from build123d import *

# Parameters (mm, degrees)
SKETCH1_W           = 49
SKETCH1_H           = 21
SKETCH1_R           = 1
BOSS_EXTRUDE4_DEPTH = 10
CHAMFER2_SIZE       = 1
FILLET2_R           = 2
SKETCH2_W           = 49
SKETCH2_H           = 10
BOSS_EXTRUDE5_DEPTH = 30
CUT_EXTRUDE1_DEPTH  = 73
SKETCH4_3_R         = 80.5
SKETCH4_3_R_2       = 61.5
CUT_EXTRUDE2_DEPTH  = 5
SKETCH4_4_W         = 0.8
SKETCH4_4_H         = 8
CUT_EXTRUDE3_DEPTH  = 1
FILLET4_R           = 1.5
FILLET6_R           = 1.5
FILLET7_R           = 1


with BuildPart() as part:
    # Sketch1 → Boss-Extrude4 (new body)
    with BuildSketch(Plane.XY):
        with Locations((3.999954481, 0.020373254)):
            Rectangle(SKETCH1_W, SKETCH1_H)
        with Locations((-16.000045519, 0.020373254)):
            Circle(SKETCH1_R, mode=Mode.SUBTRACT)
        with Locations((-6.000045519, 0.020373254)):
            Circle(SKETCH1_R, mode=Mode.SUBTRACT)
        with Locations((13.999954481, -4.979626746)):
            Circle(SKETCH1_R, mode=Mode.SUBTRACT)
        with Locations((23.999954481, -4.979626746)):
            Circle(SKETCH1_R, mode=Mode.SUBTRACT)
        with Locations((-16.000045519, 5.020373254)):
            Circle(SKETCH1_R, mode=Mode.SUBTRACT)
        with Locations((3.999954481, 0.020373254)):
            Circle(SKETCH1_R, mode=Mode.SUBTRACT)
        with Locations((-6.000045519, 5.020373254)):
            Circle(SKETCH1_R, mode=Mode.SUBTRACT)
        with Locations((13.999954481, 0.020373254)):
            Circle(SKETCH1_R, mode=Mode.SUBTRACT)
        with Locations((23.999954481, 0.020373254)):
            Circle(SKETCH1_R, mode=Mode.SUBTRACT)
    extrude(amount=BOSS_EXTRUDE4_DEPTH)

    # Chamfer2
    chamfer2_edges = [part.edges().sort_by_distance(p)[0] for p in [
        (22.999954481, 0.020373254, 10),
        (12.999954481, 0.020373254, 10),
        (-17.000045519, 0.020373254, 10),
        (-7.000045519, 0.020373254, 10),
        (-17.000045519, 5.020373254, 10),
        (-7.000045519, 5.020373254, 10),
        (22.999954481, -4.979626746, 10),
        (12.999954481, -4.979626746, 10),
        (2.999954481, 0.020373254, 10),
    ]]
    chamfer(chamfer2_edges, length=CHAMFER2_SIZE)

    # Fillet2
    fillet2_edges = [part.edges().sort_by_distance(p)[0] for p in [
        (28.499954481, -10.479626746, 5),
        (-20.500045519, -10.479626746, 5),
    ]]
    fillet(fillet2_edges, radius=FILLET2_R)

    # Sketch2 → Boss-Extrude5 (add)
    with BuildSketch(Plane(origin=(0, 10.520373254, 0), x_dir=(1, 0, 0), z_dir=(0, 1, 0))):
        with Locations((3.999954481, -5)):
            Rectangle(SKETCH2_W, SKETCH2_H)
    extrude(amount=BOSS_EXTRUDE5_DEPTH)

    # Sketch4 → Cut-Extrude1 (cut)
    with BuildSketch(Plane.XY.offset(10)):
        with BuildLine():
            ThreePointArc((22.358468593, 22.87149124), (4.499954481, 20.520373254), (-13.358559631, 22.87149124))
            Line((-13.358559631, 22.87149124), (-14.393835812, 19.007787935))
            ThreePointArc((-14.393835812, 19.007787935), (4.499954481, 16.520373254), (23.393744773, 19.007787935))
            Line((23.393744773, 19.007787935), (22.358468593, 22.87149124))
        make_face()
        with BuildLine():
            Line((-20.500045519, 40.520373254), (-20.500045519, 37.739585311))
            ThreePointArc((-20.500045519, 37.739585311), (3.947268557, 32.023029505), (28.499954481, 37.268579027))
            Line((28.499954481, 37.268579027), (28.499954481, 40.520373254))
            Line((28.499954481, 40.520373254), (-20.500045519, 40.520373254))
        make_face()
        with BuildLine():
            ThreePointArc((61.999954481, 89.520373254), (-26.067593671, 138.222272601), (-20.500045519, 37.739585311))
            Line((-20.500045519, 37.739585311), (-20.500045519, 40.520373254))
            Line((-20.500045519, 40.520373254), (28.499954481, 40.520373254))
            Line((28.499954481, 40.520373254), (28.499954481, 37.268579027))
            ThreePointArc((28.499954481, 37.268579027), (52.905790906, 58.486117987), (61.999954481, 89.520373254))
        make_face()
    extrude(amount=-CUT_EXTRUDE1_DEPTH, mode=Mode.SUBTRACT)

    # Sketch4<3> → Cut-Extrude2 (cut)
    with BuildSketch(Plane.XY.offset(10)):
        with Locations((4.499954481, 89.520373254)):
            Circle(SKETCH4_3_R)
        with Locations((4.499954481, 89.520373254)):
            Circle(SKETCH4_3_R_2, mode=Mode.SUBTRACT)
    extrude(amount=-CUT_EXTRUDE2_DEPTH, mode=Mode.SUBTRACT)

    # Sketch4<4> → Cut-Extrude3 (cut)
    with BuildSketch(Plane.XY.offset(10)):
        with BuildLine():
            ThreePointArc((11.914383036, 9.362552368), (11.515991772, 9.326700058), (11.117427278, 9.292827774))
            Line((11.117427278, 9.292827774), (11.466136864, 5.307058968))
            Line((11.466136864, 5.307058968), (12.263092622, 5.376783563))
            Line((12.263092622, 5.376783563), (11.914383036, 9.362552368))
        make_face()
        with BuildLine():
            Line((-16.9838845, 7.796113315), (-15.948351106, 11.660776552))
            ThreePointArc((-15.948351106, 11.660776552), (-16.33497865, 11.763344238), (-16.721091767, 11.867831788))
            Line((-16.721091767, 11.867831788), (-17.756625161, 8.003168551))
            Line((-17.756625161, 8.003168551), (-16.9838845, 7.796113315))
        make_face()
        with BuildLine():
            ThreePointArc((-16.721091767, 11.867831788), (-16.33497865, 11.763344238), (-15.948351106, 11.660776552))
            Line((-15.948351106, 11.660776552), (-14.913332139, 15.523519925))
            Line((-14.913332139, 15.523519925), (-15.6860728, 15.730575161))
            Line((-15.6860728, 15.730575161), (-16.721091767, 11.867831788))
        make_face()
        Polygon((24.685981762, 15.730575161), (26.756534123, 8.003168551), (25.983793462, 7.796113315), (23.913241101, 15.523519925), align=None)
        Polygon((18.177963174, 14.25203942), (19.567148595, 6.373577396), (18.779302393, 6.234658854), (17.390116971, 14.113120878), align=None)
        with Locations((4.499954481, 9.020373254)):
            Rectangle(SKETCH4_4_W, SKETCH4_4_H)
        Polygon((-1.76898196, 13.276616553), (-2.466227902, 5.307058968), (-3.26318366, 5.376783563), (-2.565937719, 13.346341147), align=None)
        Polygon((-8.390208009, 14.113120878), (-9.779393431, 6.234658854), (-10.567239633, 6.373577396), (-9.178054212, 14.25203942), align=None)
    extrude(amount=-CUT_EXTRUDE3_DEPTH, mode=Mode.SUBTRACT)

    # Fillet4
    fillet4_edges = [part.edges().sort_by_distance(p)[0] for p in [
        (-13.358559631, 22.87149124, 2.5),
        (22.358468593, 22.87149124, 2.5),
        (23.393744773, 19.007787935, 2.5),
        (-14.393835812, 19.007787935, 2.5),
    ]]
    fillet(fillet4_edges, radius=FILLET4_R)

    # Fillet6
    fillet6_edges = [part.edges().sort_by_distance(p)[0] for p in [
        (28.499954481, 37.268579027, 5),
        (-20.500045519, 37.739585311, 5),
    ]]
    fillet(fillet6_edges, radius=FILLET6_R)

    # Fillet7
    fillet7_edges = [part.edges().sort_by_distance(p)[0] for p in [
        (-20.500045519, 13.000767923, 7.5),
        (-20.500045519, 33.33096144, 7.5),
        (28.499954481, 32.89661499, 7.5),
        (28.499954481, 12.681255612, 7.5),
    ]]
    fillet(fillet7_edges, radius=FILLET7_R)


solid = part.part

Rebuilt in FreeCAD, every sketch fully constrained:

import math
import FreeCAD as App
import Part
import Sketcher
Q = App.Units.Quantity


def edges_at(feature, points):
    """Names of the edges that pass closest to the given points."""
    edges = feature.Shape.Edges
    near = lambda p: min(range(len(edges)), key=lambda i: edges[i].distToShape(Part.Vertex(*p))[0])
    return sorted({f"Edge{near(p) + 1}" for p in points})

doc = App.newDocument("Part")
params = doc.addObject("Spreadsheet::Sheet", "Params")
for row, (alias, value) in enumerate([
    ("sketch1_diameter", "2 mm"),
    ("sketch1_width", "49 mm"),
    ("sketch1_height", "21 mm"),
    ("pad1_length", "10 mm"),
    ("chamfer_size", "1 mm"),
    ("fillet_radius", "2 mm"),
    ("sketch2_width", "49 mm"),
    ("sketch2_height", "10 mm"),
    ("pad2_length", "30 mm"),
    ("sketch3_radius", "69 mm"),
    ("sketch3_radius2", "73 mm"),
    ("sketch3_radius3", "57.5 mm"),
    ("pocket1_length", "73 mm"),
    ("sketch4_diameter", "161 mm"),
    ("sketch4_diameter2", "123 mm"),
    ("pocket2_length", "5 mm"),
    ("sketch5_height", "8 mm"),
    ("sketch5_length", "8 mm"),
    ("sketch5_width", "0.8 mm"),
    ("sketch5_length2", "0.8 mm"),
    ("pocket3_length", "1 mm"),
    ("fillet2_radius", "1.5 mm"),
    ("fillet3_radius", "1.5 mm"),
    ("fillet4_radius", "1 mm"),
], start=1):
    params.set(f"A{row}", alias)
    params.set(f"B{row}", "=" + value)
    params.setAlias(f"B{row}", alias)

body = doc.addObject("PartDesign::Body", "Body")

sketch1 = body.newObject("Sketcher::SketchObject", "Sketch")
sketch1.AttachmentSupport = (doc.getObject("XY_Plane"), [""])
sketch1.MapMode = "FlatFace"
sketch1.addGeometry([
    Part.LineSegment(App.Vector(-20.5, 10.5, 0), App.Vector(-20.5, -10.5, 0)),
    Part.LineSegment(App.Vector(-20.5, -10.5, 0), App.Vector(28.5, -10.5, 0)),
    Part.LineSegment(App.Vector(28.5, -10.5, 0), App.Vector(28.5, 10.5, 0)),
    Part.LineSegment(App.Vector(28.5, 10.5, 0), App.Vector(-20.5, 10.5, 0)),
    Part.Circle(App.Vector(14, -5, 0), App.Vector(0, 0, 1), 1),
    Part.Circle(App.Vector(24, -5, 0), App.Vector(0, 0, 1), 1),
    Part.Circle(App.Vector(-16, 0, 0), App.Vector(0, 0, 1), 1),
    Part.Circle(App.Vector(-6, 0, 0), App.Vector(0, 0, 1), 1),
    Part.Circle(App.Vector(-16, 5, 0), App.Vector(0, 0, 1), 1),
    Part.Circle(App.Vector(-6, 5, 0), App.Vector(0, 0, 1), 1),
    Part.Circle(App.Vector(4, 0, 0), App.Vector(0, 0, 1), 1),
    Part.Circle(App.Vector(14, 0, 0), App.Vector(0, 0, 1), 1),
    Part.Circle(App.Vector(24, 0, 0), App.Vector(0, 0, 1), 1),
], False)
sketch1.addConstraint([
    Sketcher.Constraint("Coincident", 0, 2, 1, 1),
    Sketcher.Constraint("Coincident", 1, 2, 2, 1),
    Sketcher.Constraint("Coincident", 2, 2, 3, 1),
    Sketcher.Constraint("Coincident", 3, 2, 0, 1),
    Sketcher.Constraint("Vertical", 0),
    Sketcher.Constraint("Horizontal", 1),
    Sketcher.Constraint("Vertical", 2),
    Sketcher.Constraint("Horizontal", 3),
    Sketcher.Constraint("Equal", 4, 5),
    Sketcher.Constraint("Equal", 5, 6),
    Sketcher.Constraint("Equal", 6, 7),
    Sketcher.Constraint("Equal", 7, 8),
    Sketcher.Constraint("Equal", 8, 9),
    Sketcher.Constraint("Equal", 9, 10),
    Sketcher.Constraint("Equal", 10, 11),
    Sketcher.Constraint("Equal", 11, 12),
    Sketcher.Constraint("Horizontal", 4, 3, 5, 3),
    Sketcher.Constraint("Horizontal", 6, 3, 7, 3),
    Sketcher.Constraint("Horizontal", 8, 3, 9, 3),
    Sketcher.Constraint("Horizontal", 7, 3, 10, 3),
    Sketcher.Constraint("Horizontal", 10, 3, 11, 3),
    Sketcher.Constraint("Horizontal", 11, 3, 12, 3),
    Sketcher.Constraint("Vertical", 6, 3, 8, 3),
    Sketcher.Constraint("Vertical", 7, 3, 9, 3),
    Sketcher.Constraint("Vertical", 4, 3, 11, 3),
    Sketcher.Constraint("Vertical", 5, 3, 12, 3),
    Sketcher.Constraint("Diameter", 4, Q("2 mm")),
    Sketcher.Constraint("DistanceX", 1, 1, 1, 2, Q("49 mm")),
    Sketcher.Constraint("DistanceY", 0, 2, 0, 1, Q("21 mm")),
    Sketcher.Constraint("DistanceX", 4, 3, 5, 3, Q("10 mm")),
    Sketcher.Constraint("DistanceX", 6, 3, 4, 3, Q("30 mm")),
    Sketcher.Constraint("DistanceY", 4, 3, 6, 3, Q("5 mm")),
    Sketcher.Constraint("DistanceX", 6, 3, 7, 3, Q("10 mm")),
    Sketcher.Constraint("DistanceY", 6, 3, 8, 3, Q("5 mm")),
    Sketcher.Constraint("DistanceX", 7, 3, 10, 3, Q("10 mm")),
    Sketcher.Constraint("DistanceX", 0, 2, 6, 3, Q("4.5 mm")),
    Sketcher.Constraint("DistanceY", 0, 2, 6, 3, Q("10.5 mm")),
    Sketcher.Constraint("DistanceX", -1, 1, 4, 3, Q("13.999954 mm")),
    Sketcher.Constraint("DistanceY", 4, 3, -1, 1, Q("4.979627 mm")),
])
sketch1.setExpression("Constraints[26]", "Params.sketch1_diameter")
sketch1.setExpression("Constraints[27]", "Params.sketch1_width")
sketch1.setExpression("Constraints[28]", "Params.sketch1_height")
pad1 = body.newObject("PartDesign::Pad", "Pad")
pad1.Profile = sketch1
pad1.setExpression("Length", "Params.pad1_length")
doc.recompute()

chamfer = body.newObject("PartDesign::Chamfer", "Chamfer")
chamfer.Base = (pad1, edges_at(pad1, [
    (23, 0.02, 10),
    (13, 0.02, 10),
    (-17, 0.02, 10),
    (-7, 0.02, 10),
    (-17, 5.02, 10),
    (-7, 5.02, 10),
    (23, -4.98, 10),
    (13, -4.98, 10),
    (3, 0.02, 10),
]))
chamfer.setExpression("Size", "Params.chamfer_size")
doc.recompute()

fillet = body.newObject("PartDesign::Fillet", "Fillet")
fillet.Base = (chamfer, edges_at(chamfer, [(28.5, -10.48, 5), (-20.5, -10.48, 5)]))
fillet.setExpression("Radius", "Params.fillet_radius")

sketch2 = body.newObject("Sketcher::SketchObject", "Sketch001")
sketch2.AttachmentSupport = (doc.getObject("XZ_Plane"), [""])
sketch2.MapMode = "FlatFace"
sketch2.AttachmentOffset = App.Placement(App.Vector(0, 0, -10.520373), App.Rotation())
sketch2.addGeometry([
    Part.LineSegment(App.Vector(-21, 0, 0), App.Vector(-21, 10, 0)),
    Part.LineSegment(App.Vector(-21, 10, 0), App.Vector(28, 10, 0)),
    Part.LineSegment(App.Vector(28, 10, 0), App.Vector(28, 0, 0)),
    Part.LineSegment(App.Vector(28, 0, 0), App.Vector(-21, 0, 0)),
], False)
sketch2.addConstraint([
    Sketcher.Constraint("Coincident", 0, 2, 1, 1),
    Sketcher.Constraint("Coincident", 1, 2, 2, 1),
    Sketcher.Constraint("Coincident", 2, 2, 3, 1),
    Sketcher.Constraint("Coincident", 3, 2, 0, 1),
    Sketcher.Constraint("Vertical", 0),
    Sketcher.Constraint("Horizontal", 1),
    Sketcher.Constraint("Vertical", 2),
    Sketcher.Constraint("Horizontal", 3),
    Sketcher.Constraint("PointOnObject", 2, 2, -1),
    Sketcher.Constraint("DistanceX", 1, 1, 1, 2, Q("49 mm")),
    Sketcher.Constraint("DistanceY", 0, 1, 0, 2, Q("10 mm")),
    Sketcher.Constraint("DistanceX", 0, 2, -1, 1, Q("20.500046 mm")),
])
sketch2.setExpression("Constraints[9]", "Params.sketch2_width")
sketch2.setExpression("Constraints[10]", "Params.sketch2_height")
pad2 = body.newObject("PartDesign::Pad", "Pad001")
pad2.Profile = sketch2
pad2.setExpression("Length", "Params.pad2_length")
pad2.Reversed = True

sketch3 = body.newObject("Sketcher::SketchObject", "Sketch002")
sketch3.AttachmentSupport = (doc.getObject("XY_Plane"), [""])
sketch3.MapMode = "FlatFace"
sketch3.AttachmentOffset = App.Placement(App.Vector(0, 0, 10), App.Rotation())
sketch3.addGeometry([
    Part.ArcOfCircle(Part.Circle(App.Vector(4.5, 89.5, 0), App.Vector(0, 0, 1), 69), math.radians(-105), math.radians(-75)),
    Part.LineSegment(App.Vector(-13.4, 22.9, 0), App.Vector(-14.4, 19, 0)),
    Part.ArcOfCircle(Part.Circle(App.Vector(4.5, 89.5, 0), App.Vector(0, 0, 1), 73), math.radians(-105), math.radians(-75)),
    Part.LineSegment(App.Vector(23.4, 19, 0), App.Vector(22.4, 22.9, 0)),
    Part.ArcOfCircle(Part.Circle(App.Vector(4.5, 89.5, 0), App.Vector(0, 0, 1), 57.5), math.radians(-116), math.radians(-65)),
    Part.ArcOfCircle(Part.Circle(App.Vector(4.5, 89.5, 0), App.Vector(0, 0, 1), 57.5), math.radians(-65), math.radians(0)),
    Part.ArcOfCircle(Part.Circle(App.Vector(4.5, 89.5, 0), App.Vector(0, 0, 1), 57.5), math.radians(0), math.radians(244)),
], False)
sketch3.addConstraint([
    Sketcher.Constraint("Coincident", 0, 1, 1, 1),
    Sketcher.Constraint("Coincident", 1, 2, 2, 1),
    Sketcher.Constraint("Coincident", 2, 2, 3, 1),
    Sketcher.Constraint("Coincident", 3, 2, 0, 2),
    Sketcher.Constraint("Tangent", 4, 2, 5, 1),
    Sketcher.Constraint("Tangent", 5, 2, 6, 1),
    Sketcher.Constraint("Tangent", 6, 2, 4, 1),
    Sketcher.Constraint("Coincident", 2, 3, 0, 3),
    Sketcher.Constraint("Coincident", 4, 3, 0, 3),
    Sketcher.Constraint("Horizontal", 1, 2, 2, 2),
    Sketcher.Constraint("Horizontal", 0, 1, 3, 2),
    Sketcher.Constraint("Horizontal", 6, 3, 5, 2),
    Sketcher.Constraint("Radius", 0, Q("69 mm")),
    Sketcher.Constraint("Radius", 2, Q("73 mm")),
    Sketcher.Constraint("Radius", 4, Q("57.5 mm")),
    Sketcher.Constraint("Angle", 1, Q("-105 deg")),
    Sketcher.Constraint("DistanceX", 2, 3, 4, 2, Q("24 mm")),
    Sketcher.Constraint("DistanceX", 6, 2, 4, 2, Q("49 mm")),
    Sketcher.Constraint("DistanceX", 0, 1, -1, 1, Q("13.35856 mm")),
    Sketcher.Constraint("DistanceY", -1, 1, 0, 1, Q("22.871491 mm")),
    Sketcher.Constraint("DistanceX", -1, 1, 3, 2, Q("22.358469 mm")),
])
sketch3.setExpression("Constraints[12]", "Params.sketch3_radius")
sketch3.setExpression("Constraints[13]", "Params.sketch3_radius2")
sketch3.setExpression("Constraints[14]", "Params.sketch3_radius3")
pocket1 = body.newObject("PartDesign::Pocket", "Pocket")
pocket1.Profile = sketch3
pocket1.setExpression("Length", "Params.pocket1_length")

sketch4 = body.newObject("Sketcher::SketchObject", "Sketch003")
sketch4.AttachmentSupport = (doc.getObject("XY_Plane"), [""])
sketch4.MapMode = "FlatFace"
sketch4.AttachmentOffset = App.Placement(App.Vector(0, 0, 10), App.Rotation())
sketch4.addGeometry([
    Part.Circle(App.Vector(4, 90, 0), App.Vector(0, 0, 1), 80),
    Part.Circle(App.Vector(4, 90, 0), App.Vector(0, 0, 1), 62),
], False)
sketch4.addConstraint([
    Sketcher.Constraint("Coincident", 1, 3, 0, 3),
    Sketcher.Constraint("Diameter", 0, Q("161 mm")),
    Sketcher.Constraint("Diameter", 1, Q("123 mm")),
    Sketcher.Constraint("DistanceX", -1, 1, 0, 3, Q("4.499954 mm")),
    Sketcher.Constraint("DistanceY", -1, 1, 0, 3, Q("89.520373 mm")),
])
sketch4.setExpression("Constraints[1]", "Params.sketch4_diameter")
sketch4.setExpression("Constraints[2]", "Params.sketch4_diameter2")
pocket2 = body.newObject("PartDesign::Pocket", "Pocket001")
pocket2.Profile = sketch4
pocket2.setExpression("Length", "Params.pocket2_length")

sketch5 = body.newObject("Sketcher::SketchObject", "Sketch004")
sketch5.AttachmentSupport = (doc.getObject("XY_Plane"), [""])
sketch5.MapMode = "FlatFace"
sketch5.AttachmentOffset = App.Placement(App.Vector(0, 0, 10), App.Rotation())
sketch5.addGeometry([
    Part.ArcOfCircle(Part.Circle(App.Vector(4.5, 89.5, 0), App.Vector(0, 0, 1), 80.5), math.radians(-85.28), math.radians(-84.72)),
    Part.LineSegment(App.Vector(11.1, 9.3, 0), App.Vector(11.5, 5.3, 0)),
    Part.LineSegment(App.Vector(11.5, 5.3, 0), App.Vector(12.3, 5.4, 0)),
    Part.LineSegment(App.Vector(12.3, 5.4, 0), App.Vector(11.9, 9.4, 0)),
    Part.LineSegment(App.Vector(-17, 7.8, 0), App.Vector(-15.9, 11.7, 0)),
    Part.LineSegment(App.Vector(-15.9, 11.7, 0), App.Vector(-14.9, 15.5, 0)),
    Part.LineSegment(App.Vector(-14.9, 15.5, 0), App.Vector(-15.7, 15.7, 0)),
    Part.LineSegment(App.Vector(-15.7, 15.7, 0), App.Vector(-16.7, 11.9, 0)),
    Part.LineSegment(App.Vector(-16.7, 11.9, 0), App.Vector(-17.8, 8, 0)),
    Part.LineSegment(App.Vector(-17.8, 8, 0), App.Vector(-17, 7.8, 0)),
    Part.LineSegment(App.Vector(26.8, 8, 0), App.Vector(24.7, 15.7, 0)),
    Part.LineSegment(App.Vector(24.7, 15.7, 0), App.Vector(23.9, 15.5, 0)),
    Part.LineSegment(App.Vector(23.9, 15.5, 0), App.Vector(26, 7.8, 0)),
    Part.LineSegment(App.Vector(26, 7.8, 0), App.Vector(26.8, 8, 0)),
    Part.LineSegment(App.Vector(19.6, 6.4, 0), App.Vector(18.2, 14.3, 0)),
    Part.LineSegment(App.Vector(18.2, 14.3, 0), App.Vector(17.4, 14.1, 0)),
    Part.LineSegment(App.Vector(17.4, 14.1, 0), App.Vector(18.8, 6.2, 0)),
    Part.LineSegment(App.Vector(18.8, 6.2, 0), App.Vector(19.6, 6.4, 0)),
    Part.LineSegment(App.Vector(4.1, 13, 0), App.Vector(4.1, 5, 0)),
    Part.LineSegment(App.Vector(4.1, 5, 0), App.Vector(4.9, 5, 0)),
    Part.LineSegment(App.Vector(4.9, 5, 0), App.Vector(4.9, 13, 0)),
    Part.LineSegment(App.Vector(4.9, 13, 0), App.Vector(4.1, 13, 0)),
    Part.LineSegment(App.Vector(-2.5, 5.3, 0), App.Vector(-1.8, 13.3, 0)),
    Part.LineSegment(App.Vector(-1.8, 13.3, 0), App.Vector(-2.6, 13.3, 0)),
    Part.LineSegment(App.Vector(-2.6, 13.3, 0), App.Vector(-3.3, 5.4, 0)),
    Part.LineSegment(App.Vector(-3.3, 5.4, 0), App.Vector(-2.5, 5.3, 0)),
    Part.LineSegment(App.Vector(-9.8, 6.2, 0), App.Vector(-8.4, 14.1, 0)),
    Part.LineSegment(App.Vector(-8.4, 14.1, 0), App.Vector(-9.2, 14.3, 0)),
    Part.LineSegment(App.Vector(-9.2, 14.3, 0), App.Vector(-10.6, 6.4, 0)),
    Part.LineSegment(App.Vector(-10.6, 6.4, 0), App.Vector(-9.8, 6.2, 0)),
], False)
sketch5.addConstraint([
    Sketcher.Constraint("Coincident", 0, 1, 1, 1),
    Sketcher.Constraint("Coincident", 1, 2, 2, 1),
    Sketcher.Constraint("Coincident", 2, 2, 3, 1),
    Sketcher.Constraint("Coincident", 3, 2, 0, 2),
    Sketcher.Constraint("Coincident", 4, 2, 5, 1),
    Sketcher.Constraint("Coincident", 5, 2, 6, 1),
    Sketcher.Constraint("Coincident", 6, 2, 7, 1),
    Sketcher.Constraint("Coincident", 7, 2, 8, 1),
    Sketcher.Constraint("Coincident", 8, 2, 9, 1),
    Sketcher.Constraint("Coincident", 9, 2, 4, 1),
    Sketcher.Constraint("Coincident", 10, 2, 11, 1),
    Sketcher.Constraint("Coincident", 11, 2, 12, 1),
    Sketcher.Constraint("Coincident", 12, 2, 13, 1),
    Sketcher.Constraint("Coincident", 13, 2, 10, 1),
    Sketcher.Constraint("Coincident", 14, 2, 15, 1),
    Sketcher.Constraint("Coincident", 15, 2, 16, 1),
    Sketcher.Constraint("Coincident", 16, 2, 17, 1),
    Sketcher.Constraint("Coincident", 17, 2, 14, 1),
    Sketcher.Constraint("Coincident", 18, 2, 19, 1),
    Sketcher.Constraint("Coincident", 19, 2, 20, 1),
    Sketcher.Constraint("Coincident", 20, 2, 21, 1),
    Sketcher.Constraint("Coincident", 21, 2, 18, 1),
    Sketcher.Constraint("Coincident", 22, 2, 23, 1),
    Sketcher.Constraint("Coincident", 23, 2, 24, 1),
    Sketcher.Constraint("Coincident", 24, 2, 25, 1),
    Sketcher.Constraint("Coincident", 25, 2, 22, 1),
    Sketcher.Constraint("Coincident", 26, 2, 27, 1),
    Sketcher.Constraint("Coincident", 27, 2, 28, 1),
    Sketcher.Constraint("Coincident", 28, 2, 29, 1),
    Sketcher.Constraint("Coincident", 29, 2, 26, 1),
    Sketcher.Constraint("Vertical", 18),
    Sketcher.Constraint("Horizontal", 19),
    Sketcher.Constraint("Vertical", 20),
    Sketcher.Constraint("Horizontal", 21),
    Sketcher.Constraint("Perpendicular", 1, 2),
    Sketcher.Constraint("Perpendicular", 2, 3),
    Sketcher.Constraint("Parallel", 4, 5),
    Sketcher.Constraint("Perpendicular", 5, 6),
    Sketcher.Constraint("Perpendicular", 6, 7),
    Sketcher.Constraint("Parallel", 7, 8),
    Sketcher.Constraint("Perpendicular", 8, 9),
    Sketcher.Constraint("Perpendicular", 10, 11),
    Sketcher.Constraint("Perpendicular", 11, 12),
    Sketcher.Constraint("Perpendicular", 12, 13),
    Sketcher.Constraint("Perpendicular", 14, 15),
    Sketcher.Constraint("Perpendicular", 15, 16),
    Sketcher.Constraint("Perpendicular", 16, 17),
    Sketcher.Constraint("Perpendicular", 22, 23),
    Sketcher.Constraint("Perpendicular", 23, 24),
    Sketcher.Constraint("Perpendicular", 24, 25),
    Sketcher.Constraint("Perpendicular", 26, 27),
    Sketcher.Constraint("Perpendicular", 27, 28),
    Sketcher.Constraint("Perpendicular", 28, 29),
    Sketcher.Constraint("Horizontal", 6, 2, 10, 2),
    Sketcher.Constraint("Horizontal", 5, 2, 11, 2),
    Sketcher.Constraint("Horizontal", 9, 2, 12, 2),
    Sketcher.Constraint("Horizontal", 2, 2, 24, 2),
    Sketcher.Constraint("Horizontal", 1, 2, 25, 2),
    Sketcher.Constraint("Horizontal", 15, 2, 26, 2),
    Sketcher.Constraint("Horizontal", 14, 2, 27, 2),
    Sketcher.Constraint("Horizontal", 17, 2, 28, 2),
    Sketcher.Constraint("Equal", 1, 3),
    Sketcher.Constraint("Equal", 3, 4),
    Sketcher.Constraint("Equal", 2, 6),
    Sketcher.Constraint("Equal", 5, 7),
    Sketcher.Constraint("Equal", 9, 11),
    Sketcher.Constraint("Equal", 12, 14),
    Sketcher.Constraint("Equal", 13, 15),
    Sketcher.Constraint("Equal", 16, 22),
    Sketcher.Constraint("Equal", 17, 23),
    Sketcher.Constraint("Equal", 24, 26),
    Sketcher.Constraint("DistanceY", 18, 2, 18, 1, Q("8 mm")),
    Sketcher.Constraint("Angle", 1, Q("-85 deg")),
    Sketcher.Constraint("Angle", 4, Q("75 deg")),
    Sketcher.Constraint("Angle", 14, Q("100 deg")),
    Sketcher.Constraint("Distance", 10, Q("8 mm")),
    Sketcher.Constraint("DistanceX", 19, 1, 19, 2, Q("0.8 mm")),
    Sketcher.Constraint("Distance", 2, Q("0.8 mm")),
    Sketcher.Constraint("Radius", 0, Q("80.500021 mm")),
    Sketcher.Constraint("DistanceY", 4, 2, 6, 2, Q("4.069799 mm")),
    Sketcher.Constraint("DistanceX", 6, 2, 0, 1, Q("26.8035 mm")),
    Sketcher.Constraint("DistanceX", 3, 2, 10, 2, Q("12.771599 mm")),
    Sketcher.Constraint("DistanceY", 15, 2, 11, 2, Q("1.410399 mm")),
    Sketcher.Constraint("DistanceY", 1, 2, 16, 2, Q("0.9276 mm")),
    Sketcher.Constraint("DistanceY", -1, 1, 1, 2, Q("5.307059 mm")),
    Sketcher.Constraint("DistanceX", 4, 2, -1, 1, Q("15.948351 mm")),
    Sketcher.Constraint("DistanceX", -1, 1, 17, 2, Q("19.567149 mm")),
    Sketcher.Constraint("DistanceX", 22, 2, -1, 1, Q("1.768982 mm")),
    Sketcher.Constraint("DistanceX", 26, 2, -1, 1, Q("8.390208 mm")),
    Sketcher.Constraint("DistanceX", 18, 2, 2, 2, Q("8.163138 mm")),
    Sketcher.Constraint("DistanceY", 18, 2, 2, 2, Q("0.35641 mm")),
])
sketch5.setExpression("Constraints[71]", "Params.sketch5_height")
sketch5.setExpression("Constraints[75]", "Params.sketch5_length")
sketch5.setExpression("Constraints[76]", "Params.sketch5_width")
sketch5.setExpression("Constraints[77]", "Params.sketch5_length2")
pocket3 = body.newObject("PartDesign::Pocket", "Pocket002")
pocket3.Profile = sketch5
pocket3.setExpression("Length", "Params.pocket3_length")
doc.recompute()

fillet2 = body.newObject("PartDesign::Fillet", "Fillet001")
fillet2.Base = (pocket3, edges_at(pocket3, [
    (-13.359, 22.871, 2.5),
    (22.358, 22.871, 2.5),
    (23.394, 19.008, 2.5),
    (-14.394, 19.008, 2.5),
]))
fillet2.setExpression("Radius", "Params.fillet2_radius")
doc.recompute()

fillet3 = body.newObject("PartDesign::Fillet", "Fillet002")
fillet3.Base = (fillet2, edges_at(fillet2, [(28.5, 37.269, 5), (-20.5, 37.74, 5)]))
fillet3.setExpression("Radius", "Params.fillet3_radius")
doc.recompute()

fillet4 = body.newObject("PartDesign::Fillet", "Fillet003")
fillet4.Base = (fillet3, edges_at(fillet3, [
    (-20.5, 13.001, 7.5),
    (-20.5, 33.331, 7.5),
    (28.5, 32.897, 7.5),
    (28.5, 12.681, 7.5),
]))
fillet4.setExpression("Radius", "Params.fillet4_radius")

doc.recompute()
